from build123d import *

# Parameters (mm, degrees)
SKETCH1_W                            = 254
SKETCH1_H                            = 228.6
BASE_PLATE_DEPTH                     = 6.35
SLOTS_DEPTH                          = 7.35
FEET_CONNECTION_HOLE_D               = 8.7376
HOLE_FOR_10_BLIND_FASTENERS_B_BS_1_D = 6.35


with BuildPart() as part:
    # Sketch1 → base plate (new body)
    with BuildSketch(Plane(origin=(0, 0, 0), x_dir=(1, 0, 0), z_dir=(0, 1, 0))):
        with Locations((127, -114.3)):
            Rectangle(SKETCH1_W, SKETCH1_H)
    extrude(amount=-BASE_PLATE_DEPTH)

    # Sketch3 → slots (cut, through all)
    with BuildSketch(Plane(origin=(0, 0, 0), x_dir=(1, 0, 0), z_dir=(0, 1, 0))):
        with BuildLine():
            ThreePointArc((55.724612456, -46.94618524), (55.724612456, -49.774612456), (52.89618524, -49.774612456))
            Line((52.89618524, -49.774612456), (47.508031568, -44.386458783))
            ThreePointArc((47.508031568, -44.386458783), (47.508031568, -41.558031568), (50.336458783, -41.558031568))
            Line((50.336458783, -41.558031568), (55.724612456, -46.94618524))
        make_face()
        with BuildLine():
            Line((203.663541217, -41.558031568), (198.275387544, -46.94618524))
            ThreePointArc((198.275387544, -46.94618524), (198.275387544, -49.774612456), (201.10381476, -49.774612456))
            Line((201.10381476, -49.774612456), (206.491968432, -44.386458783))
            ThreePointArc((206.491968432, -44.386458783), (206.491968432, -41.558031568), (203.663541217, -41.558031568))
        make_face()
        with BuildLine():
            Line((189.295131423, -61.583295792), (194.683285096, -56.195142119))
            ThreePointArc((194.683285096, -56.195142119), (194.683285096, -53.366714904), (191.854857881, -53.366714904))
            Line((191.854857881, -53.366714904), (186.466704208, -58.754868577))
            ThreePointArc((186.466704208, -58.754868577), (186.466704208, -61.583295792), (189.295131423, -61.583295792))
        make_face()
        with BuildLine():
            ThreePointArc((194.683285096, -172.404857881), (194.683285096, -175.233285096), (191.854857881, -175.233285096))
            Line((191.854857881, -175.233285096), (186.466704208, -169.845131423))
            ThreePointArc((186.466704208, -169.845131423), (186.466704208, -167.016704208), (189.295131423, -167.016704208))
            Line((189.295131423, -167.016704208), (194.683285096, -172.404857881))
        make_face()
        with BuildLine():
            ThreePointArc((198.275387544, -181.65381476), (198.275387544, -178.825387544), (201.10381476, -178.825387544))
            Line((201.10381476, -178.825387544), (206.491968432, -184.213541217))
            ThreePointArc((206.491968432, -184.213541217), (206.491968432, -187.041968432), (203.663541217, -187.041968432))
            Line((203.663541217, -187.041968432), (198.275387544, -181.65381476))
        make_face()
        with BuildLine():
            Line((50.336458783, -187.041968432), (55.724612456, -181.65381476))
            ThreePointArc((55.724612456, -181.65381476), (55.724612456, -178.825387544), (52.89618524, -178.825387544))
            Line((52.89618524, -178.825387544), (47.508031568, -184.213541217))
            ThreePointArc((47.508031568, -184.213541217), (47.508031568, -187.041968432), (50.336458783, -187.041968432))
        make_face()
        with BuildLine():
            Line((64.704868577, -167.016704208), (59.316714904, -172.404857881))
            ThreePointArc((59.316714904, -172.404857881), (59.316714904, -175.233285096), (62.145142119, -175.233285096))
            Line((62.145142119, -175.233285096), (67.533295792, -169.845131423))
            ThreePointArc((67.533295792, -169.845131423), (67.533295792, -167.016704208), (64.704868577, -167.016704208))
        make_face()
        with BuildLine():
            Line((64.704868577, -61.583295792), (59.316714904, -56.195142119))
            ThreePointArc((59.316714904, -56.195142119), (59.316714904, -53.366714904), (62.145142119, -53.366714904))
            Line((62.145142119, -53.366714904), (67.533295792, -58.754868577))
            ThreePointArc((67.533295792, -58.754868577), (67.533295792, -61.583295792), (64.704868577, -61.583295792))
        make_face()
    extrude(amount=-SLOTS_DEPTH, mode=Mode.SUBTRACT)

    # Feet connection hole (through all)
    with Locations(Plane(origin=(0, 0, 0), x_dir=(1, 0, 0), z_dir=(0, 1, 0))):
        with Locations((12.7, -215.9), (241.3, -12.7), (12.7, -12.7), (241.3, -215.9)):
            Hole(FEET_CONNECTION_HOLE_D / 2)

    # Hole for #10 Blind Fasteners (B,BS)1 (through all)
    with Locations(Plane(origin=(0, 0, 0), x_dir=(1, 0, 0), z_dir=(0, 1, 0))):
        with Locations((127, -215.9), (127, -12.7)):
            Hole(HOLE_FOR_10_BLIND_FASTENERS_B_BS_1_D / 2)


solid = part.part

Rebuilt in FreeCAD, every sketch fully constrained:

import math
import FreeCAD as App
import Part
import Sketcher
from FreeCAD import Vector
Q = App.Units.Quantity


def add_polygon(sketch, points):
    """Adds a closed chain of lines whose ends are joined by coincident constraints."""
    first, n = sketch.GeometryCount, len(points)
    for a, b in zip(points, points[1:] + points[:1]):
        sketch.addGeometry(Part.LineSegment(App.Vector(*a, 0), App.Vector(*b, 0)), False)
    for i in range(n):
        sketch.addConstraint(Sketcher.Constraint("Coincident", first + i, 2, first + (i + 1) % n, 1))

doc = App.newDocument("Part")
params = doc.addObject("Spreadsheet::Sheet", "Params")
for row, (alias, value) in enumerate([
    ("sketch1_width", "10 in"),
    ("sketch1_height", "9 in"),
    ("pad1_length", "0.25 in"),
    ("sketch2_length", "0.3 in"),
    ("sketch3_diameter", "0.344 in"),
    ("hole_diameter", "0.344 in"),
    ("sketch4_diameter", "0.25 in"),
    ("hole2_diameter", "0.25 in"),
], start=1):
    params.set(f"A{row}", alias)
    params.set(f"B{row}", "=" + value)
    params.setAlias(f"B{row}", alias)

body = doc.addObject("PartDesign::Body", "Body")

sketch1 = body.newObject("Sketcher::SketchObject", "Sketch")
sketch1.AttachmentSupport = (doc.getObject("XZ_Plane"), [""])
sketch1.MapMode = "FlatFace"
add_polygon(sketch1, [(0, 0), (0, 228.6), (254, 228.6), (254, 0)])
sketch1.addConstraint([
    Sketcher.Constraint("Vertical", 0),
    Sketcher.Constraint("Horizontal", 1),
    Sketcher.Constraint("Vertical", 2),
    Sketcher.Constraint("Horizontal", 3),
    Sketcher.Constraint("Coincident", 3, 2, -1, 1),
    Sketcher.Constraint("DistanceX", 1, 1, 1, 2, Q("10 in")),
    Sketcher.Constraint("DistanceY", 0, 1, 0, 2, Q("9 in")),
])
sketch1.setExpression("Constraints[9]", "Params.sketch1_width")
sketch1.setExpression("Constraints[10]", "Params.sketch1_height")
pad1 = body.newObject("PartDesign::Pad", "Pad")
pad1.Profile = sketch1
pad1.setExpression("Length", "Params.pad1_length")

sketch2 = body.newObject("Sketcher::SketchObject", "Sketch001")
sketch2.AttachmentSupport = (doc.getObject("XZ_Plane"), [""])
sketch2.MapMode = "FlatFace"
sketch2.addGeometry([
    Part.ArcOfCircle(Part.Circle(Vector(54.310399, 48.360399, 0), Vector(0, 0, 1), 2), math.radians(-45), math.radians(135)),
    Part.LineSegment(Vector(55.724612, 46.946185, 0), Vector(50.336459, 41.558032, 0)),
    Part.ArcOfCircle(Part.Circle(Vector(48.922245, 42.972245, 0), Vector(0, 0, 1), 2), math.radians(135), math.radians(315)),
    Part.LineSegment(Vector(47.508032, 44.386459, 0), Vector(52.896185, 49.774612, 0)),
    Part.LineSegment(Vector(203.663541, 41.558032, 0), Vector(198.275388, 46.946185, 0)),
    Part.ArcOfCircle(Part.Circle(Vector(199.689601, 48.360399, 0), Vector(0, 0, 1), 2), math.radians(45), math.radians(225)),
    Part.LineSegment(Vector(201.103815, 49.774612, 0), Vector(206.491968, 44.386459, 0)),
    Part.ArcOfCircle(Part.Circle(Vector(205.077755, 42.972245, 0), Vector(0, 0, 1), 2), math.radians(-135), math.radians(45)),
    Part.LineSegment(Vector(189.295131, 61.583296, 0), Vector(194.683285, 56.195142, 0)),
    Part.ArcOfCircle(Part.Circle(Vector(193.269071, 54.780929, 0), Vector(0, 0, 1), 2), math.radians(-135), math.radians(45)),
    Part.LineSegment(Vector(191.854858, 53.366715, 0), Vector(186.466704, 58.754869, 0)),
    Part.ArcOfCircle(Part.Circle(Vector(187.880918, 60.169082, 0), Vector(0, 0, 1), 2), math.radians(45), math.radians(225)),
    Part.ArcOfCircle(Part.Circle(Vector(193.269071, 173.819071, 0), Vector(0, 0, 1), 2), math.radians(-45), math.radians(135)),
    Part.LineSegment(Vector(194.683285, 172.404858, 0), Vector(189.295131, 167.016704, 0)),
    Part.ArcOfCircle(Part.Circle(Vector(187.880918, 168.430918, 0), Vector(0, 0, 1), 2), math.radians(135), math.radians(315)),
    Part.LineSegment(Vector(186.466704, 169.845131, 0), Vector(191.854858, 175.233285, 0)),
    Part.ArcOfCircle(Part.Circle(Vector(199.689601, 180.239601, 0), Vector(0, 0, 1), 2), math.radians(135), math.radians(315)),
    Part.LineSegment(Vector(198.275388, 181.653815, 0), Vector(203.663541, 187.041968, 0)),
    Part.ArcOfCircle(Part.Circle(Vector(205.077755, 185.627755, 0), Vector(0, 0, 1), 2), math.radians(-45), math.radians(135)),
    Part.LineSegment(Vector(206.491968, 184.213541, 0), Vector(201.103815, 178.825388, 0)),
    Part.LineSegment(Vector(50.336459, 187.041968, 0), Vector(55.724612, 181.653815, 0)),
    Part.ArcOfCircle(Part.Circle(Vector(54.310399, 180.239601, 0), Vector(0, 0, 1), 2), math.radians(-135), math.radians(45)),
    Part.LineSegment(Vector(52.896185, 178.825388, 0), Vector(47.508032, 184.213541, 0)),
    Part.ArcOfCircle(Part.Circle(Vector(48.922245, 185.627755, 0), Vector(0, 0, 1), 2), math.radians(45), math.radians(225)),
    Part.LineSegment(Vector(64.704869, 167.016704, 0), Vector(59.316715, 172.404858, 0)),
    Part.ArcOfCircle(Part.Circle(Vector(60.730929, 173.819071, 0), Vector(0, 0, 1), 2), math.radians(45), math.radians(225)),
    Part.LineSegment(Vector(62.145142, 175.233285, 0), Vector(67.533296, 169.845131, 0)),
    Part.ArcOfCircle(Part.Circle(Vector(66.119082, 168.430918, 0), Vector(0, 0, 1), 2), math.radians(-135), math.radians(45)),
    Part.LineSegment(Vector(59.316715, 56.195142, 0), Vector(64.704869, 61.583296, 0)),
    Part.ArcOfCircle(Part.Circle(Vector(66.119082, 60.169082, 0), Vector(0, 0, 1), 2), math.radians(-45), math.radians(135)),
    Part.LineSegment(Vector(67.533296, 58.754869, 0), Vector(62.145142, 53.366715, 0)),
    Part.ArcOfCircle(Part.Circle(Vector(60.730929, 54.780929, 0), Vector(0, 0, 1), 2), math.radians(135), math.radians(315)),
], False)
sketch2.addConstraint([
    Sketcher.Constraint("Tangent", 0, 1, 1, 1),
    Sketcher.Constraint("Tangent", 1, 2, 2, 2),
    Sketcher.Constraint("Tangent", 2, 1, 3, 1),
    Sketcher.Constraint("Tangent", 3, 2, 0, 2),
    Sketcher.Constraint("Tangent", 4, 2, 5, 2),
    Sketcher.Constraint("Tangent", 5, 1, 6, 1),
    Sketcher.Constraint("Tangent", 6, 2, 7, 2),
    Sketcher.Constraint("Tangent", 7, 1, 4, 1),
    Sketcher.Constraint("Tangent", 8, 2, 9, 2),
    Sketcher.Constraint("Tangent", 9, 1, 10, 1),
    Sketcher.Constraint("Tangent", 10, 2, 11, 2),
    Sketcher.Constraint("Tangent", 11, 1, 8, 1),
    Sketcher.Constraint("Tangent", 12, 1, 13, 1),
    Sketcher.Constraint("Tangent", 13, 2, 14, 2),
    Sketcher.Constraint("Tangent", 14, 1, 15, 1),
    Sketcher.Constraint("Tangent", 15, 2, 12, 2),
    Sketcher.Constraint("Tangent", 16, 1, 17, 1),
    Sketcher.Constraint("Tangent", 17, 2, 18, 2),
    Sketcher.Constraint("Tangent", 18, 1, 19, 1),
    Sketcher.Constraint("Tangent", 19, 2, 16, 2),
    Sketcher.Constraint("Tangent", 20, 2, 21, 2),
    Sketcher.Constraint("Tangent", 21, 1, 22, 1),
    Sketcher.Constraint("Tangent", 22, 2, 23, 2),
    Sketcher.Constraint("Tangent", 23, 1, 20, 1),
    Sketcher.Constraint("Tangent", 24, 2, 25, 2),
    Sketcher.Constraint("Tangent", 25, 1, 26, 1),
    Sketcher.Constraint("Tangent", 26, 2, 27, 2),
    Sketcher.Constraint("Tangent", 27, 1, 24, 1),
    Sketcher.Constraint("Tangent", 28, 2, 29, 2),
    Sketcher.Constraint("Tangent", 29, 1, 30, 1),
    Sketcher.Constraint("Tangent", 30, 2, 31, 2),
    Sketcher.Constraint("Tangent", 31, 1, 28, 1),
    Sketcher.Constraint("Equal", 0, 2),
    Sketcher.Constraint("Equal", 2, 5),
    Sketcher.Constraint("Equal", 5, 7),
    Sketcher.Constraint("Equal", 7, 9),
    Sketcher.Constraint("Equal", 9, 11),
    Sketcher.Constraint("Equal", 11, 12),
    Sketcher.Constraint("Equal", 12, 14),
    Sketcher.Constraint("Equal", 14, 16),
    Sketcher.Constraint("Equal", 16, 18),
    Sketcher.Constraint("Equal", 18, 21),
    Sketcher.Constraint("Equal", 21, 23),
    Sketcher.Constraint("Equal", 23, 25),
    Sketcher.Constraint("Equal", 25, 27),
    Sketcher.Constraint("Equal", 27, 29),
    Sketcher.Constraint("Equal", 29, 31),
    Sketcher.Constraint("Perpendicular", 3, 4),
    Sketcher.Constraint("Parallel", 6, 8),
    Sketcher.Constraint("Perpendicular", 10, 13),
    Sketcher.Constraint("Parallel", 15, 17),
    Sketcher.Constraint("Perpendicular", 19, 20),
    Sketcher.Constraint("Parallel", 22, 24),
    Sketcher.Constraint("Perpendicular", 26, 28),
    Sketcher.Constraint("Horizontal", 0, 3, 5, 3),
    Sketcher.Constraint("Horizontal", 2, 3, 7, 3),
    Sketcher.Constraint("Horizontal", 16, 3, 21, 3),
    Sketcher.Constraint("Horizontal", 18, 3, 23, 3),
    Sketcher.Constraint("Horizontal", 12, 3, 25, 3),
    Sketcher.Constraint("Horizontal", 14, 3, 27, 3),
    Sketcher.Constraint("Horizontal", 11, 3, 29, 3),
    Sketcher.Constraint("Horizontal", 9, 3, 31, 3),
    Sketcher.Constraint("Horizontal", 0, 1, 4, 2),
    Sketcher.Constraint("Vertical", 9, 3, 12, 3),
    Sketcher.Constraint("Vertical", 11, 3, 14, 3),
    Sketcher.Constraint("Vertical", 5, 3, 16, 3),
    Sketcher.Constraint("Vertical", 7, 3, 18, 3),
    Sketcher.Constraint("Vertical", 0, 3, 21, 3),
    Sketcher.Constraint("Vertical", 27, 3, 29, 3),
    Sketcher.Constraint("Equal", 6, 8),
    Sketcher.Constraint("Distance", 1, Q("0.3 in")),
    Sketcher.Constraint("Radius", 0, Q("2 mm")),
    Sketcher.Constraint("DistanceX", -1, 1, 0, 3, Q("54.310399 mm")),
    Sketcher.Constraint("DistanceY", -1, 1, 0, 3, Q("48.360399 mm")),
    Sketcher.Constraint("DistanceX", -1, 1, 5, 3, Q("199.689601 mm")),
    Sketcher.Constraint("DistanceY", -1, 1, 16, 3, Q("180.239601 mm")),
    Sketcher.Constraint("DistanceX", -1, 1, 9, 3, Q("193.269071 mm")),
    Sketcher.Constraint("DistanceY", -1, 1, 9, 3, Q("54.780929 mm")),
    Sketcher.Constraint("DistanceY", -1, 1, 12, 3, Q("173.819071 mm")),
    Sketcher.Constraint("DistanceX", -1, 1, 25, 3, Q("60.730929 mm")),
])
sketch2.setExpression("Constraints[70]", "Params.sketch2_length")
pocket1 = body.newObject("PartDesign::Pocket", "Pocket")
pocket1.Profile = sketch2
pocket1.Type = "ThroughAll"
pocket1.Reversed = True

sketch3 = body.newObject("Sketcher::SketchObject", "Sketch002")
sketch3.AttachmentSupport = (doc.getObject("XZ_Plane"), [""])
sketch3.MapMode = "FlatFace"
sketch3.addGeometry([
    Part.Circle(Vector(12.7, 215.9, 0), Vector(0, 0, 1), 4.3688),
    Part.Circle(Vector(241.3, 12.7, 0), Vector(0, 0, 1), 4.3688),
    Part.Circle(Vector(12.7, 12.7, 0), Vector(0, 0, 1), 4.3688),
    Part.Circle(Vector(241.3, 215.9, 0), Vector(0, 0, 1), 4.3688),
], False)
sketch3.addConstraint([
    Sketcher.Constraint("Equal", 0, 1),
    Sketcher.Constraint("Equal", 1, 2),
    Sketcher.Constraint("Equal", 2, 3),
    Sketcher.Constraint("Horizontal", 1, 3, 2, 3),
    Sketcher.Constraint("Horizontal", 0, 3, 3, 3),
    Sketcher.Constraint("Vertical", 0, 3, 2, 3),
    Sketcher.Constraint("Vertical", 1, 3, 3, 3),
    Sketcher.Constraint("Diameter", 0, Q("0.344 in")),
    Sketcher.Constraint("DistanceX", 0, 3, 1, 3, Q("9 in")),
    Sketcher.Constraint("DistanceY", 1, 3, 0, 3, Q("8 in")),
    Sketcher.Constraint("DistanceX", -1, 1, 0, 3, Q("0.5 in")),
    Sketcher.Constraint("DistanceY", -1, 1, 0, 3, Q("8.5 in")),
])
sketch3.setExpression("Constraints[7]", "Params.sketch3_diameter")
doc.recompute()
hole = body.newObject("PartDesign::Hole", "Hole")
hole.Profile = sketch3
hole.ThreadType = "None"
hole.setExpression("Diameter", "Params.hole_diameter")
hole.DepthType = "ThroughAll"
hole.Reversed = True

sketch4 = body.newObject("Sketcher::SketchObject", "Sketch003")
sketch4.AttachmentSupport = (doc.getObject("XZ_Plane"), [""])
sketch4.MapMode = "FlatFace"
sketch4.addGeometry([
    Part.Circle(Vector(127, 215.9, 0), Vector(0, 0, 1), 3.175),
    Part.Circle(Vector(127, 12.7, 0), Vector(0, 0, 1), 3.175),
], False)
sketch4.addConstraint([
    Sketcher.Constraint("Equal", 0, 1),
    Sketcher.Constraint("Vertical", 0, 3, 1, 3),
    Sketcher.Constraint("Diameter", 0, Q("0.25 in")),
    Sketcher.Constraint("DistanceX", -1, 1, 0, 3, Q("5 in")),
    Sketcher.Constraint("DistanceY", 1, 3, 0, 3, Q("8 in")),
    Sketcher.Constraint("DistanceY", -1, 1, 0, 3, Q("8.5 in")),
])
sketch4.setExpression("Constraints[2]", "Params.sketch4_diameter")
doc.recompute()
hole2 = body.newObject("PartDesign::Hole", "Hole001")
hole2.Profile = sketch4
hole2.ThreadType = "None"
hole2.setExpression("Diameter", "Params.hole2_diameter")
hole2.DepthType = "ThroughAll"
hole2.Reversed = True

doc.recompute()
